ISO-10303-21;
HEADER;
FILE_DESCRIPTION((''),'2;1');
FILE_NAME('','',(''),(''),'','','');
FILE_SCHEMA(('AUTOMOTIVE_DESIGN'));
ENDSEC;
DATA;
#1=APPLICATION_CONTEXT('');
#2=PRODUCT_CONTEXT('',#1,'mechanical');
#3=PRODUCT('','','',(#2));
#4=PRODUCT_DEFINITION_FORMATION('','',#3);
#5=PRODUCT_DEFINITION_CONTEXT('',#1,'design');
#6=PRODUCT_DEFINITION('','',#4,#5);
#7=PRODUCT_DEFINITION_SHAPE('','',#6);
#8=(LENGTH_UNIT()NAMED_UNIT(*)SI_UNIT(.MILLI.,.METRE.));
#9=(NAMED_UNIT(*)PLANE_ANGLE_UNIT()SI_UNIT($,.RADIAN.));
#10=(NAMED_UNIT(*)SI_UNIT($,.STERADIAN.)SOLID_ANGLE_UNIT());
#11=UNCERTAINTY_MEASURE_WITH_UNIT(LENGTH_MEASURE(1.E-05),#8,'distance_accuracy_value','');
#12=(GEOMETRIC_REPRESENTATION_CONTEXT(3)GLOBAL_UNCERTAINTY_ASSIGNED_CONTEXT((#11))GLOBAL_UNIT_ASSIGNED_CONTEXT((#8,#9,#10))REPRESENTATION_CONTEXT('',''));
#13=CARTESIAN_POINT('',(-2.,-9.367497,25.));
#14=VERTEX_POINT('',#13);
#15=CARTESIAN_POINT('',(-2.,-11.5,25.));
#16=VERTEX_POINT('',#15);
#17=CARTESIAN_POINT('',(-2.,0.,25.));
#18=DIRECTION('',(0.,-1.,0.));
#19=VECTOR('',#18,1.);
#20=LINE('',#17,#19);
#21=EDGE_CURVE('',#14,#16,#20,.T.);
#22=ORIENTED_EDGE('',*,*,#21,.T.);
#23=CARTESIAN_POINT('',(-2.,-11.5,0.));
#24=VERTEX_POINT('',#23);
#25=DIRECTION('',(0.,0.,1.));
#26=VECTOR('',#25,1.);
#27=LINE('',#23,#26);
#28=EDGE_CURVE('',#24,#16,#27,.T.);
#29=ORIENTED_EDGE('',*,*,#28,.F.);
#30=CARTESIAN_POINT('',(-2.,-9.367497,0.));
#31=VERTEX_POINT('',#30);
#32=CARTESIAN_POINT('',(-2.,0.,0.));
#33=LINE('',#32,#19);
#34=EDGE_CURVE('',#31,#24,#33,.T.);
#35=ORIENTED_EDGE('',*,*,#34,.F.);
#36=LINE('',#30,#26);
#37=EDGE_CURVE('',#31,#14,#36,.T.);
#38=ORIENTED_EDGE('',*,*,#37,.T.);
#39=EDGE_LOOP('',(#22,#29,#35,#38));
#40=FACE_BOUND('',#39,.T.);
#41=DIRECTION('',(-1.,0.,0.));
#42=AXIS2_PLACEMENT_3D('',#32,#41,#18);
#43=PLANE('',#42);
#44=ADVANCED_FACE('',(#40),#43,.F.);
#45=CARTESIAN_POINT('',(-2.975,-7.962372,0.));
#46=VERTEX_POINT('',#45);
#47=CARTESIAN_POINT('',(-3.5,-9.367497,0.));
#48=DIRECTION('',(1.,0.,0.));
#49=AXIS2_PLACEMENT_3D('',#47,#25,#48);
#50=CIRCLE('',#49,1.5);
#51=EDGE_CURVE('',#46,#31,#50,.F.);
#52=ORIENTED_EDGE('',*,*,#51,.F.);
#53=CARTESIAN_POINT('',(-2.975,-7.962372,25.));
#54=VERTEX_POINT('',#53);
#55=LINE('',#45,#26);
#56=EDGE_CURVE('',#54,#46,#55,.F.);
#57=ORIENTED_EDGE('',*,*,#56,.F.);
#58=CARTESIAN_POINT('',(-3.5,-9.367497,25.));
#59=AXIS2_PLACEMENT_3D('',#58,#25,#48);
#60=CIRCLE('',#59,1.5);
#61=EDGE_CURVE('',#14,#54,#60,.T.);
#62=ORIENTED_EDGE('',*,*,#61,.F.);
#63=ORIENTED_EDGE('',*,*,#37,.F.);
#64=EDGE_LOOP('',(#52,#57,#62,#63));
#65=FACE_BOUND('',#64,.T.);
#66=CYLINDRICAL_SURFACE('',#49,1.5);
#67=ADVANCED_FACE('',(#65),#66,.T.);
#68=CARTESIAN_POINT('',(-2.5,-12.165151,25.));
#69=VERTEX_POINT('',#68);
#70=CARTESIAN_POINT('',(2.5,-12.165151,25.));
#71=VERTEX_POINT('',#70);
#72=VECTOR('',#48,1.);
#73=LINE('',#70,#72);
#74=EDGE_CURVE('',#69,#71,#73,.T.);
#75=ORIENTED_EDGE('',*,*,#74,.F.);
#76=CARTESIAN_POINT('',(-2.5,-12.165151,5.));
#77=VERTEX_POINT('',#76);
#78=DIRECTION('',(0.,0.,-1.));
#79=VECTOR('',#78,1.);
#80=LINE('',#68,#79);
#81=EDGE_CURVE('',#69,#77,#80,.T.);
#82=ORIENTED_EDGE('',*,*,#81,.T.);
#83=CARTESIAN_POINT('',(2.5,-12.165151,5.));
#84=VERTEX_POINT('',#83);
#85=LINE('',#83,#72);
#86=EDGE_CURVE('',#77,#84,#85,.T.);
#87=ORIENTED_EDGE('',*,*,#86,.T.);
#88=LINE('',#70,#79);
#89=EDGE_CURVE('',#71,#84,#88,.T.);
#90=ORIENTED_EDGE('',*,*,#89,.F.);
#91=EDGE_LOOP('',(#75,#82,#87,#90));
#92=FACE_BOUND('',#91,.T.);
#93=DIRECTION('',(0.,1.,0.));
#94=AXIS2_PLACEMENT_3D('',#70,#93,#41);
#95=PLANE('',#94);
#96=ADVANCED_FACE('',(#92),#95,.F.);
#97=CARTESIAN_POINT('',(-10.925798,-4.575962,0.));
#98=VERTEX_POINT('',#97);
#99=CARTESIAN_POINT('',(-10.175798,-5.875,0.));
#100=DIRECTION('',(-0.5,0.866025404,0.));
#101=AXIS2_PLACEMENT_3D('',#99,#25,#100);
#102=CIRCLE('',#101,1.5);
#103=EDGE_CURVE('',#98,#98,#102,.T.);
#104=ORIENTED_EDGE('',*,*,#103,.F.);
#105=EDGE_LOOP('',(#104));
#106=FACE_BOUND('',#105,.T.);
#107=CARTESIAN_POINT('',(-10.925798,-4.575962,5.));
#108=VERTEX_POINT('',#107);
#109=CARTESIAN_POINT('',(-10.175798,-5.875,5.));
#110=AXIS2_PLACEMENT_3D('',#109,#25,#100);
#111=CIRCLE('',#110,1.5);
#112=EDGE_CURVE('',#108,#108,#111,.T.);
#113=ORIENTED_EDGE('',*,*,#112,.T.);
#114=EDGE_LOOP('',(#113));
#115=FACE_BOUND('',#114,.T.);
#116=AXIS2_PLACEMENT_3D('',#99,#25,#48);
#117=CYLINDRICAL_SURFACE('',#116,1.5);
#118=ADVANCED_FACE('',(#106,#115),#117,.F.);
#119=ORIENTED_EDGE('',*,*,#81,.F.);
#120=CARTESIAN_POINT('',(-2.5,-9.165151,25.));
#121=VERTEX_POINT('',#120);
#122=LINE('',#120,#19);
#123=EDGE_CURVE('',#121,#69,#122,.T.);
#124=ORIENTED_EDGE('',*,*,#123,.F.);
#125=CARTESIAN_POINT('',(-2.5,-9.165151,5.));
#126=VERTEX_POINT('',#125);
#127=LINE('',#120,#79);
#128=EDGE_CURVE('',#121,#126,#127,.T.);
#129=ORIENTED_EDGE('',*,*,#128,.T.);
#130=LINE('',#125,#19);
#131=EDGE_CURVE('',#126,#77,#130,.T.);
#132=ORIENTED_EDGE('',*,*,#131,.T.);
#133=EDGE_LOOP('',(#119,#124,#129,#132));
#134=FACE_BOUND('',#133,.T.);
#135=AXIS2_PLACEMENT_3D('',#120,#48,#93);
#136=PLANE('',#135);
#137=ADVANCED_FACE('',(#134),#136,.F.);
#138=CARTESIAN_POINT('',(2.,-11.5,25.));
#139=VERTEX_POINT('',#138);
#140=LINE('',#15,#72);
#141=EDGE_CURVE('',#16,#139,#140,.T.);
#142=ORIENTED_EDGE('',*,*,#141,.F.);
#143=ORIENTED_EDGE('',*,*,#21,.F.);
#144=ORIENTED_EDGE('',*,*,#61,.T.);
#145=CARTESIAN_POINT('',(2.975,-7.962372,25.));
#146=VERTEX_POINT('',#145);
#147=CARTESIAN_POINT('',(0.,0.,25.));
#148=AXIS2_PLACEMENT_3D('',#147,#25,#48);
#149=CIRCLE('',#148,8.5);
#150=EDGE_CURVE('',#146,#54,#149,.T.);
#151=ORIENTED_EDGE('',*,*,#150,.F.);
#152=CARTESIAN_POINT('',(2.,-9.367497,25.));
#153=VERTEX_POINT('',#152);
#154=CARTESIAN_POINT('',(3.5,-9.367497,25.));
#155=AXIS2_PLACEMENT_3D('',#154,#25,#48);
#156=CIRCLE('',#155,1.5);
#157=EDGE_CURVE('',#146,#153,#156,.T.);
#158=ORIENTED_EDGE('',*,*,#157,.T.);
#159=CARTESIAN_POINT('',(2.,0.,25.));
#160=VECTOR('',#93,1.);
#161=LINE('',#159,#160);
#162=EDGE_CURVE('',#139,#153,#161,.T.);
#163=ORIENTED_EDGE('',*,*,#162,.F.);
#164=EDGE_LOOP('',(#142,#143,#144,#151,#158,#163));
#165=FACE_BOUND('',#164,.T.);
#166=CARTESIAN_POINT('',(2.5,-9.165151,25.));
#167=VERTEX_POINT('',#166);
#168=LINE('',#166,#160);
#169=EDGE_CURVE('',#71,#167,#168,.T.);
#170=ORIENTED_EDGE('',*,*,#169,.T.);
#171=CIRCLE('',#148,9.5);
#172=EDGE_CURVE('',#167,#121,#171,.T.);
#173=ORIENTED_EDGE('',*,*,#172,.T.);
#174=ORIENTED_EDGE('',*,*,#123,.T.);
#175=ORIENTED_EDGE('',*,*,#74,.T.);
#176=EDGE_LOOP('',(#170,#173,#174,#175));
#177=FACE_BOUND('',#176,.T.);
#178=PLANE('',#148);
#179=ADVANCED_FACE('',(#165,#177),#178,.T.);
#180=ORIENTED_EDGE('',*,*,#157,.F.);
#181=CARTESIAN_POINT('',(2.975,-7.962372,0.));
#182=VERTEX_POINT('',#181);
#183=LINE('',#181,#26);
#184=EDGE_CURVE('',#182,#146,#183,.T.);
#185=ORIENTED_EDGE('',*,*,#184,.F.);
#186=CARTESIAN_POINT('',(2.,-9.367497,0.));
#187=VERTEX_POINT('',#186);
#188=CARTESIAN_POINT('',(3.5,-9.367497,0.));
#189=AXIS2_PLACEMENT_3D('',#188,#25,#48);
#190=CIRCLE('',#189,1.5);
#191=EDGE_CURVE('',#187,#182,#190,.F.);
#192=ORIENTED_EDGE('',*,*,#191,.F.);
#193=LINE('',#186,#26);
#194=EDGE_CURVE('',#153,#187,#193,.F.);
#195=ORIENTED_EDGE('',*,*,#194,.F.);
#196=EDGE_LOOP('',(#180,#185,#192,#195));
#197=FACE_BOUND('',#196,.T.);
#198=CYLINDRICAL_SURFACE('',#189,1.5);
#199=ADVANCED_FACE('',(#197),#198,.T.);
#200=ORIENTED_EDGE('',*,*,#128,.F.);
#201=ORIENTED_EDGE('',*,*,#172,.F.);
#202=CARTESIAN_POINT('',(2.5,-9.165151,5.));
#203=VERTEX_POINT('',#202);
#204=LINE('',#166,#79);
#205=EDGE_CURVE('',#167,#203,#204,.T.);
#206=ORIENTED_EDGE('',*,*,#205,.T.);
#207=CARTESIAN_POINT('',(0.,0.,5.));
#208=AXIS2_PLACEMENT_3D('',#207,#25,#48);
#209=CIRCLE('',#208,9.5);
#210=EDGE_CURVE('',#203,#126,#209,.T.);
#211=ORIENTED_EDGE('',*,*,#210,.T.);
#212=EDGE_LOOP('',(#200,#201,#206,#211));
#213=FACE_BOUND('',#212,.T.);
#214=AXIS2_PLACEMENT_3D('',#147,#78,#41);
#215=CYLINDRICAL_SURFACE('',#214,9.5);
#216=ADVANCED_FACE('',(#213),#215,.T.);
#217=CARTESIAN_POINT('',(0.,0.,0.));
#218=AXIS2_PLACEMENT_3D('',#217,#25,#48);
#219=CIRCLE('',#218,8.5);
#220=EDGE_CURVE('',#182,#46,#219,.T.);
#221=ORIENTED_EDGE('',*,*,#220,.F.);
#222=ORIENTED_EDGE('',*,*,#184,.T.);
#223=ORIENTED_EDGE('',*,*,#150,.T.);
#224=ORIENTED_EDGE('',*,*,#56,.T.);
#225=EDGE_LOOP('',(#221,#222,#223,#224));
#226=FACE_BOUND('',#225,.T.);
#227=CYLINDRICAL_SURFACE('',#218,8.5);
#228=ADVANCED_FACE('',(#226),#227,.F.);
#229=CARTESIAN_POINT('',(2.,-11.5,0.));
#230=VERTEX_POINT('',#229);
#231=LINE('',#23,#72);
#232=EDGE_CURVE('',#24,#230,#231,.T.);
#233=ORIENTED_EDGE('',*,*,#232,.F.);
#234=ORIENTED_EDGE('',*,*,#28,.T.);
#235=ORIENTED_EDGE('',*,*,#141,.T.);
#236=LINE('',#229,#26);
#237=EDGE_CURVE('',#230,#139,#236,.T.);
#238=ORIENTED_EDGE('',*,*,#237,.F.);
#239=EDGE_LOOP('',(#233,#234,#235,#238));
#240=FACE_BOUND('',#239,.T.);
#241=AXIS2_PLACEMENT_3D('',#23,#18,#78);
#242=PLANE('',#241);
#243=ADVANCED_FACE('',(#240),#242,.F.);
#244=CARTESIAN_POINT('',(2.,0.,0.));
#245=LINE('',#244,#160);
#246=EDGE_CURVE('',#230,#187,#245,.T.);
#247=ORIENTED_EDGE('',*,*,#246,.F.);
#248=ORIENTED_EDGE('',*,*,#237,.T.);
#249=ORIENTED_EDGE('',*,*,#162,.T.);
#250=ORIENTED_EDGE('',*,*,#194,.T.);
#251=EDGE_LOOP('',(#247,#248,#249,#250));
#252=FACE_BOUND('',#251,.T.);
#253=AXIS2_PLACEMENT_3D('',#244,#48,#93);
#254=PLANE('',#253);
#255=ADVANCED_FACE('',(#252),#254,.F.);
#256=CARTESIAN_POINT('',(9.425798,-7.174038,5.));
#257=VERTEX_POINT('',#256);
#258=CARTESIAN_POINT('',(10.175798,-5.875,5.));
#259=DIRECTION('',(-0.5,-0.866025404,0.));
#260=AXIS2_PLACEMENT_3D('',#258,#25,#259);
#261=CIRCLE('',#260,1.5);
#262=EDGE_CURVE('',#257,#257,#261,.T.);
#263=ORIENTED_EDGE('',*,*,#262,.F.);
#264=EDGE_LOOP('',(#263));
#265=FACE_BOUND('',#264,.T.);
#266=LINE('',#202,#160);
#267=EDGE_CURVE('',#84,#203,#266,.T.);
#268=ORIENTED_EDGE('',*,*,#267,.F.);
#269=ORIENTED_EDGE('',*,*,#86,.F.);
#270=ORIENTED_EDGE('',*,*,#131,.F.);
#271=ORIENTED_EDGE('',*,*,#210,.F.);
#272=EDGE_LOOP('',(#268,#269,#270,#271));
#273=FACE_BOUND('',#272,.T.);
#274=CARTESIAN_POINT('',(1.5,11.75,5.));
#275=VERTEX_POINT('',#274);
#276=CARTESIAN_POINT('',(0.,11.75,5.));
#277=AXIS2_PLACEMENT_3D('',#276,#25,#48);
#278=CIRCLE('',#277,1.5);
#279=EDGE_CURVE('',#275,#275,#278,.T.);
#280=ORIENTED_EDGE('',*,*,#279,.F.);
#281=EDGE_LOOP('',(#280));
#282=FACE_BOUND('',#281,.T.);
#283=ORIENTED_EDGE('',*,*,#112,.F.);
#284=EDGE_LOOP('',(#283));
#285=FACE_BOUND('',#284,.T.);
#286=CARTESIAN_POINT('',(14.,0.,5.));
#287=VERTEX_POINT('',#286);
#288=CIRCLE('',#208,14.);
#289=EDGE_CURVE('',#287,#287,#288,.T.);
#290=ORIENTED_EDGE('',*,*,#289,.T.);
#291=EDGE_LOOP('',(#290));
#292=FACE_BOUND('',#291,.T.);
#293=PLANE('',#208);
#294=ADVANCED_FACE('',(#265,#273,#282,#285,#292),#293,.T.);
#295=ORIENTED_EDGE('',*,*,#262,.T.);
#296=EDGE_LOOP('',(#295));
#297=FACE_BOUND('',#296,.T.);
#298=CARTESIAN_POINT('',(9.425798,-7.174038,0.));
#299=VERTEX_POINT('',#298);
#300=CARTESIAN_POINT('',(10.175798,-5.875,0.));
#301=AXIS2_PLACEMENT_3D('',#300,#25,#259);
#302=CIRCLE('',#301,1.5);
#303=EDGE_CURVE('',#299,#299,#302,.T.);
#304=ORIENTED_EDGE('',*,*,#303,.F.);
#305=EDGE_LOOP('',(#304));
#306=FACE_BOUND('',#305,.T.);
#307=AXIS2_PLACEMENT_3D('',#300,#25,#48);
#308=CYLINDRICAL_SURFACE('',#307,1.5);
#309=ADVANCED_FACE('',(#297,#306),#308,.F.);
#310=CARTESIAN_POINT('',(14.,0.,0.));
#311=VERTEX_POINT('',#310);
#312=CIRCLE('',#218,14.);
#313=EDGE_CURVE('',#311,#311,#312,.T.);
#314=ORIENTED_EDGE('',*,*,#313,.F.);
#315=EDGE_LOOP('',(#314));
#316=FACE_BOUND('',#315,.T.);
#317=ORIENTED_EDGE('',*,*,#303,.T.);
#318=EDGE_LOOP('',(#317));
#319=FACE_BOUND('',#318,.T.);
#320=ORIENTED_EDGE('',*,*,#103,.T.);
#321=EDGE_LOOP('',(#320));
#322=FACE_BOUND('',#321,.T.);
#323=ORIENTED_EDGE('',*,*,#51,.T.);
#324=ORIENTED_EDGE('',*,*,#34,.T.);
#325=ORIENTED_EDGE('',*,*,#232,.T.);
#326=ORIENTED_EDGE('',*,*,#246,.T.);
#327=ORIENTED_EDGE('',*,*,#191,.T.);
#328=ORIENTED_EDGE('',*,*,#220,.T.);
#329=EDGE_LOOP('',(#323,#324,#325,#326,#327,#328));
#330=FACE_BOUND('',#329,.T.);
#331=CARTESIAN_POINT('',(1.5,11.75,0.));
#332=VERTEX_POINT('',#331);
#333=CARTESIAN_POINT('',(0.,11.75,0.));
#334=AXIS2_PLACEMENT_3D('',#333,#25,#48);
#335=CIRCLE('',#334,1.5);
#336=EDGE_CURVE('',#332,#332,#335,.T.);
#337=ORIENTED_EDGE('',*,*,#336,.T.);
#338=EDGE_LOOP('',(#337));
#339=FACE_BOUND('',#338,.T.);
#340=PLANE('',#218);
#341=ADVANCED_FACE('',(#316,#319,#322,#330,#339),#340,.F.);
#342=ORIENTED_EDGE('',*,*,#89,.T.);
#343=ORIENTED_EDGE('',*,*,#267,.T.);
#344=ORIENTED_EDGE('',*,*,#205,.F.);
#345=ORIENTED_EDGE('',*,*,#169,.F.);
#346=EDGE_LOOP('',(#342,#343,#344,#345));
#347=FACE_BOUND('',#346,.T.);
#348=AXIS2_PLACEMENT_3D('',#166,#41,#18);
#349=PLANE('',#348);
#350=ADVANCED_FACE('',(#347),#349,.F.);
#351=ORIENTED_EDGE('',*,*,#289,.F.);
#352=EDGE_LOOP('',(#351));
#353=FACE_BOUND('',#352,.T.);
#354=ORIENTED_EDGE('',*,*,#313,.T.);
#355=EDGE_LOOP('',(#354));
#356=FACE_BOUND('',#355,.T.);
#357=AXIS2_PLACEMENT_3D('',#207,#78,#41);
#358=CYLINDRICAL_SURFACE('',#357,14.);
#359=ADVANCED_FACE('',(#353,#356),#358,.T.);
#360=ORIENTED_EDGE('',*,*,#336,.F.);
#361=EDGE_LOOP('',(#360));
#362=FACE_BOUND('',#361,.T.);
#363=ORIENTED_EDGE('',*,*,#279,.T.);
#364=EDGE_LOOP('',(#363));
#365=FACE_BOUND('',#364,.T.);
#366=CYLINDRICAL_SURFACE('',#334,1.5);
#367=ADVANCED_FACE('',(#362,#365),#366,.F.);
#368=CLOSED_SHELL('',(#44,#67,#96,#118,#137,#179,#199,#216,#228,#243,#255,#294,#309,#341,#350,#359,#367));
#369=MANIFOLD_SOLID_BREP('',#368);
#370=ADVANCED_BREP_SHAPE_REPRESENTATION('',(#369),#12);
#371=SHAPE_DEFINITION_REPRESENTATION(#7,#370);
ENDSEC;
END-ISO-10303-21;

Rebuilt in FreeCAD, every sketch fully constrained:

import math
import FreeCAD as App
import Part
import Sketcher

V = App.Vector
Q = App.Units.Quantity


def edges_at(feature, points):
    """Names of the edges that pass closest to the given points."""
    edges = feature.Shape.Edges
    near = lambda p: min(range(len(edges)), key=lambda i: edges[i].distToShape(Part.Vertex(*p))[0])
    return sorted({f"Edge{near(p) + 1}" for p in points})

doc = App.newDocument("Part")
body = doc.addObject("PartDesign::Body", "Body")

# Sketch on XY plane
sketch1 = body.newObject("Sketcher::SketchObject", "Sketch")
sketch1.AttachmentSupport = (doc.getObject("XY_Plane"), [""])
sketch1.MapMode = "FlatFace"
sketch1.addGeometry(Part.Circle(V(0, 0, 0), V(0, 0, 1), 14), False)
sketch1.addConstraint(Sketcher.Constraint("Coincident", 0, 3, -1, 1))
sketch1.addConstraint(Sketcher.Constraint("Diameter", 0, Q("28 mm")))
pad1 = body.newObject("PartDesign::Pad", "Pad")
pad1.Profile = sketch1
pad1.Length = 5

# Sketch on XY plane
sketch2 = body.newObject("Sketcher::SketchObject", "Sketch001")
sketch2.AttachmentSupport = (doc.getObject("XY_Plane"), [""])
sketch2.MapMode = "FlatFace"
sketch2.AttachmentOffset = App.Placement(V(0, 0, 5), App.Rotation())
sketch2.addGeometry(Part.LineSegment(V(2.5, -12.2, 0), V(2.5, -9.2, 0)), False)
sketch2.addGeometry(Part.ArcOfCircle(Part.Circle(V(0, 0, 0), V(0, 0, 1), 9.5), math.radians(-75), math.radians(255)), False)
sketch2.addGeometry(Part.LineSegment(V(-2.5, -9.2, 0), V(-2.5, -12.2, 0)), False)
sketch2.addGeometry(Part.LineSegment(V(-2.5, -12.2, 0), V(2.5, -12.2, 0)), False)
sketch2.addConstraint(Sketcher.Constraint("Coincident", 0, 2, 1, 1))
sketch2.addConstraint(Sketcher.Constraint("Coincident", 1, 2, 2, 1))
sketch2.addConstraint(Sketcher.Constraint("Coincident", 2, 2, 3, 1))
sketch2.addConstraint(Sketcher.Constraint("Coincident", 3, 2, 0, 1))
sketch2.addConstraint(Sketcher.Constraint("Vertical", 0))
sketch2.addConstraint(Sketcher.Constraint("Vertical", 2))
sketch2.addConstraint(Sketcher.Constraint("Horizontal", 3))
sketch2.addConstraint(Sketcher.Constraint("Coincident", 1, 3, -1, 1))
sketch2.addConstraint(Sketcher.Constraint("Horizontal", 0, 2, 1, 2))
sketch2.addConstraint(Sketcher.Constraint("Radius", 1, Q("9.5 mm")))
sketch2.addConstraint(Sketcher.Constraint("DistanceX", 3, 1, 3, 2, Q("5 mm")))
sketch2.addConstraint(Sketcher.Constraint("DistanceY", 0, 1, 0, 2, Q("3 mm")))
pad2 = body.newObject("PartDesign::Pad", "Pad001")
pad2.Profile = sketch2
pad2.Length = 20

# Sketch on XY plane
sketch3 = body.newObject("Sketcher::SketchObject", "Sketch002")
sketch3.AttachmentSupport = (doc.getObject("XY_Plane"), [""])
sketch3.MapMode = "FlatFace"
sketch3.AttachmentOffset = App.Placement(V(0, 0, 25), App.Rotation())
sketch3.addGeometry(Part.Circle(V(0, 0, 0), V(0, 0, 1), 8), False)
sketch3.addConstraint(Sketcher.Constraint("Coincident", 0, 3, -1, 1))
sketch3.addConstraint(Sketcher.Constraint("Diameter", 0, Q("17 mm")))
pocket1 = body.newObject("PartDesign::Pocket", "Pocket")
pocket1.Profile = sketch3
pocket1.Type = "ThroughAll"

# Sketch on XY plane
sketch4 = body.newObject("Sketcher::SketchObject", "Sketch003")
sketch4.AttachmentSupport = (doc.getObject("XY_Plane"), [""])
sketch4.MapMode = "FlatFace"
sketch4.AttachmentOffset = App.Placement(V(0, 0, 25), App.Rotation())
sketch4.addGeometry(Part.LineSegment(V(-2, 0, 0), V(-2, -11.5, 0)), False)
sketch4.addGeometry(Part.LineSegment(V(-2, -11.5, 0), V(2, -11.5, 0)), False)
sketch4.addGeometry(Part.LineSegment(V(2, -11.5, 0), V(2, 0, 0)), False)
sketch4.addGeometry(Part.LineSegment(V(2, 0, 0), V(-2, 0, 0)), False)
sketch4.addConstraint(Sketcher.Constraint("Coincident", 0, 2, 1, 1))
sketch4.addConstraint(Sketcher.Constraint("Coincident", 1, 2, 2, 1))
sketch4.addConstraint(Sketcher.Constraint("Coincident", 2, 2, 3, 1))
sketch4.addConstraint(Sketcher.Constraint("Coincident", 3, 2, 0, 1))
sketch4.addConstraint(Sketcher.Constraint("Vertical", 0))
sketch4.addConstraint(Sketcher.Constraint("Horizontal", 1))
sketch4.addConstraint(Sketcher.Constraint("Vertical", 2))
sketch4.addConstraint(Sketcher.Constraint("Horizontal", 3))
sketch4.addConstraint(Sketcher.Constraint("Symmetric", 2, 2, 3, 2, -1, 1))
sketch4.addConstraint(Sketcher.Constraint("DistanceX", 1, 1, 1, 2, Q("4 mm")))
sketch4.addConstraint(Sketcher.Constraint("DistanceY", 0, 2, 0, 1, Q("11.5 mm")))
pocket2 = body.newObject("PartDesign::Pocket", "Pocket001")
pocket2.Profile = sketch4
pocket2.Type = "ThroughAll"

# Sketch on XY plane
sketch5 = body.newObject("Sketcher::SketchObject", "Sketch004")
sketch5.AttachmentSupport = (doc.getObject("XY_Plane"), [""])
sketch5.MapMode = "FlatFace"
sketch5.AttachmentOffset = App.Placement(V(0, 0, 5), App.Rotation())
sketch5.addGeometry(Part.Circle(V(0, 11.8, 0), V(0, 0, 1), 1.5), False)
sketch5.addConstraint(Sketcher.Constraint("PointOnObject", 0, 3, -2))
sketch5.addConstraint(Sketcher.Constraint("Diameter", 0, Q("3 mm")))
sketch5.addConstraint(Sketcher.Constraint("DistanceY", -1, 1, 0, 3, Q("11.75 mm")))
pocket3 = body.newObject("PartDesign::Pocket", "Pocket002")
pocket3.Profile = sketch5
pocket3.Type = "ThroughAll"
doc.recompute()

polarpattern = body.newObject("PartDesign::PolarPattern", "PolarPattern")
polarpattern.Originals = [pocket3]
polarpattern.Axis = (doc.getObject("Z_Axis"), [""])
polarpattern.Angle = 360
polarpattern.Occurrences = 3
body.Tip = polarpattern
doc.recompute()

fillet = body.newObject("PartDesign::Fillet", "Fillet")
fillet.Base = (polarpattern, edges_at(polarpattern, [(2, -8.261, 12.5), (-2, -8.261, 12.5)]))
fillet.Radius = 1.5

doc.recompute()
